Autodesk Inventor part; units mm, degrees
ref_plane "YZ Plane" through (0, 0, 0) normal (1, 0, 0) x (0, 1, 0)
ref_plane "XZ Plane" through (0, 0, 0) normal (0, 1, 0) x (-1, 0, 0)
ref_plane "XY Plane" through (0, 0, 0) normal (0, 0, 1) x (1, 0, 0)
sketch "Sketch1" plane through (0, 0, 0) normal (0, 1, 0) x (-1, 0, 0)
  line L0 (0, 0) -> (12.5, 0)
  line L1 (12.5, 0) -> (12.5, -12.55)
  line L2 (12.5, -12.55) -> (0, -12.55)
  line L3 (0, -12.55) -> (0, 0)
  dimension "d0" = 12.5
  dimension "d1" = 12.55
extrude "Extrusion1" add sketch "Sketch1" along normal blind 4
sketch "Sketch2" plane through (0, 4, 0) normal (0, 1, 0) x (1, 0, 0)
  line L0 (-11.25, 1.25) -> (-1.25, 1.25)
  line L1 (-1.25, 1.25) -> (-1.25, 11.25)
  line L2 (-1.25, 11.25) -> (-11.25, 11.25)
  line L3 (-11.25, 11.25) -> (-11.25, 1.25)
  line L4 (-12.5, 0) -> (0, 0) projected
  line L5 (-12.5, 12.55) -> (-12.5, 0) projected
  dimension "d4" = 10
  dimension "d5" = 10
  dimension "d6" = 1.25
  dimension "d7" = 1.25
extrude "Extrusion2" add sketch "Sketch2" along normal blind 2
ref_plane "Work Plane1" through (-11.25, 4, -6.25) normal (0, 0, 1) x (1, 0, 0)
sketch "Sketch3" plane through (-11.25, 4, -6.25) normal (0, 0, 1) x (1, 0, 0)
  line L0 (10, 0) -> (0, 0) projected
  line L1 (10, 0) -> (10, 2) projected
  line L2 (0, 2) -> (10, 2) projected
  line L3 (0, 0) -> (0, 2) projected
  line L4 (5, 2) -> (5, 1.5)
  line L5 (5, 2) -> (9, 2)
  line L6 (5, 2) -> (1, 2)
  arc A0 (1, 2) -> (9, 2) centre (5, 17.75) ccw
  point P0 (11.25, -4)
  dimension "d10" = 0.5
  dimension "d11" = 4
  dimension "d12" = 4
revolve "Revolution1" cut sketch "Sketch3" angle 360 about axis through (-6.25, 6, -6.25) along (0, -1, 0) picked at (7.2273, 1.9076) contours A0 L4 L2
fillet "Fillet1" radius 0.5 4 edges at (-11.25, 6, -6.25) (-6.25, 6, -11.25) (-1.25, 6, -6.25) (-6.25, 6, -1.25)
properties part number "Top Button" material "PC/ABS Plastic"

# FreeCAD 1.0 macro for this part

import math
import FreeCAD as App
import Part
import Sketcher

V = App.Vector


def edges_at(feature, points):
    """Names of the edges that pass closest to the given points."""
    edges = feature.Shape.Edges
    near = lambda p: min(range(len(edges)), key=lambda i: edges[i].distToShape(Part.Vertex(*p))[0])
    return sorted({f"Edge{near(p) + 1}" for p in points})


def add_polygon(sketch, points):
    """Adds a closed chain of lines whose ends are joined by coincident constraints."""
    first, n = sketch.GeometryCount, len(points)
    for a, b in zip(points, points[1:] + points[:1]):
        sketch.addGeometry(Part.LineSegment(App.Vector(*a, 0), App.Vector(*b, 0)), False)
    for i in range(n):
        sketch.addConstraint(Sketcher.Constraint("Coincident", first + i, 2, first + (i + 1) % n, 1))

doc = App.newDocument("Part")
body = doc.addObject("PartDesign::Body", "Body")

# Sketch on XZ plane
sketch1 = doc.addObject("Sketcher::SketchObject", "Sketch")
body.addObject(sketch1)
sketch1.AttachmentSupport = (doc.XZ_Plane, [""])
sketch1.MapMode = "FlatFace"
add_polygon(sketch1, [(-12.5, 0), (0, 0), (0, -12.55), (-12.5, -12.55)])  # lines 0-3
sketch1.addConstraint([
    Sketcher.Constraint("Horizontal", 0),
    Sketcher.Constraint("Vertical", 1),
    Sketcher.Constraint("Horizontal", 2),
    Sketcher.Constraint("Vertical", 3),
    Sketcher.Constraint("Coincident", 0, 2, -1, 1),
    Sketcher.Constraint("DistanceX", 0, 1, 0, 2, 12.5),
    Sketcher.Constraint("DistanceY", 1, 2, 1, 1, 12.55),
])
pad1 = doc.addObject("PartDesign::Pad", "Pad")
body.addObject(pad1)
pad1.Profile = sketch1
pad1.Length = 4
pad1.Reversed = True

# Sketch on XZ plane
sketch2 = doc.addObject("Sketcher::SketchObject", "Sketch001")
body.addObject(sketch2)
sketch2.AttachmentSupport = (doc.XZ_Plane, [""])
sketch2.MapMode = "FlatFace"
sketch2.AttachmentOffset = App.Placement(V(0, 0, -4), App.Rotation())
add_polygon(sketch2, [(-11.25, -11.25), (-11.25, -1.25), (-1.25, -1.25), (-1.25, -11.25)])  # lines 0-3
sketch2.addConstraint([
    Sketcher.Constraint("Vertical", 0),
    Sketcher.Constraint("Horizontal", 1),
    Sketcher.Constraint("Vertical", 2),
    Sketcher.Constraint("Horizontal", 3),
    Sketcher.Constraint("Equal", 3, 0),
    Sketcher.Constraint("DistanceX", 1, 1, 1, 2, 10.0),
    Sketcher.Constraint("DistanceY", 0, 2, -1, 1, 1.25),
    Sketcher.Constraint("DistanceX", 1, 2, -1, 1, 1.25),
])
pad2 = doc.addObject("PartDesign::Pad", "Pad001")
body.addObject(pad2)
pad2.Profile = sketch2
pad2.Length = 2
pad2.Reversed = True

# Sketch on XY plane
sketch3 = doc.addObject("Sketcher::SketchObject", "Sketch002")
body.addObject(sketch3)
sketch3.AttachmentSupport = (doc.XY_Plane, [""])
sketch3.MapMode = "FlatFace"
sketch3.AttachmentOffset = App.Placement(V(0, 0, -6.25), App.Rotation())
sketch3.addGeometry([
    Part.ArcOfCircle(Part.Circle(V(-6.25, 21.75, 0), V(0, 0, 1), 16.25), math.radians(-90), math.radians(-75.749967)),
    Part.LineSegment(V(-2.25, 6, 0), V(-6.25, 6, 0)),
    Part.LineSegment(V(-6.25, 6, 0), V(-6.25, 5.5, 0)),
], False)
sketch3.addGeometry(Part.LineSegment(V(-6.25, 21.75, 0), V(-6.25, 5.5, 0)), True)  # axis
sketch3.addConstraint([
    Sketcher.Constraint("Coincident", 0, 2, 1, 1),
    Sketcher.Constraint("Coincident", 1, 2, 2, 1),
    Sketcher.Constraint("Coincident", 2, 2, 0, 1),
    Sketcher.Constraint("Horizontal", 1),
    Sketcher.Constraint("Vertical", 2),
    Sketcher.Constraint("Vertical", 3),
    Sketcher.Constraint("Coincident", 3, 1, 0, 3),
    Sketcher.Constraint("Coincident", 3, 2, 2, 2),
    Sketcher.Constraint("DistanceX", 1, 2, 1, 1, 4.0),
    Sketcher.Constraint("DistanceY", 2, 2, 2, 1, 0.5),
    Sketcher.Constraint("DistanceY", -1, 1, 0, 2, 6.0),
    Sketcher.Constraint("DistanceX", 0, 3, -1, 1, 6.25),
])
groove = doc.addObject("PartDesign::Groove", "Groove")
body.addObject(groove)
groove.Profile = sketch3
groove.ReferenceAxis = (sketch3, ["Axis0"])
groove.Angle = 360
doc.recompute()

fillet = doc.addObject("PartDesign::Fillet", "Fillet")
body.addObject(fillet)
fillet.Base = (groove, edges_at(groove, [
    (-11.25, 6, -6.25),
    (-6.25, 6, -11.25),
    (-1.25, 6, -6.25),
    (-6.25, 6, -1.25),
]))
fillet.Radius = 0.5

doc.recompute()
